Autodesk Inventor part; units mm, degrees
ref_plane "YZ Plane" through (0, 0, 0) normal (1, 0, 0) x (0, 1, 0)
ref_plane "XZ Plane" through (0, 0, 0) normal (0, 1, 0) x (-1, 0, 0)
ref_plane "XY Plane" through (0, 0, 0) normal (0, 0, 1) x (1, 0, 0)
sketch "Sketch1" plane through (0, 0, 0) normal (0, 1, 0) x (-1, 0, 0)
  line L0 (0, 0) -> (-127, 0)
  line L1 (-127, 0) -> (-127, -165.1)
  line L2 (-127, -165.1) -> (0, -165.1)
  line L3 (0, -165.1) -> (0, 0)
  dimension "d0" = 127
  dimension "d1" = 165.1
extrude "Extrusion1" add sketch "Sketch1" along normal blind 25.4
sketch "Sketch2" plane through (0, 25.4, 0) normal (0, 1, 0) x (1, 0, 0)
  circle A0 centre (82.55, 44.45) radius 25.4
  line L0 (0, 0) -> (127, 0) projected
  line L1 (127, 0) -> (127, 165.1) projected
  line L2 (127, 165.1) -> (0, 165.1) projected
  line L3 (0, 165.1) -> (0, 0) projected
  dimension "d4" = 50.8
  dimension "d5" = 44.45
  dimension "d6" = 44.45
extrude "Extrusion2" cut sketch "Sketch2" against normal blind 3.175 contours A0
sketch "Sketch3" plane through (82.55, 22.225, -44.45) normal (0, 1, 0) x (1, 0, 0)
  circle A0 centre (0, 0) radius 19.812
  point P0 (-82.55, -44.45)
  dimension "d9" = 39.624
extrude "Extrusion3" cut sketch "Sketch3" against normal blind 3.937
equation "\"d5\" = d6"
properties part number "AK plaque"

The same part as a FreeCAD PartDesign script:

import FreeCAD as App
import Part
import Sketcher

V = App.Vector
Q = App.Units.Quantity


def add_polygon(sketch, points):
    """Adds a closed chain of lines whose ends are joined by coincident constraints."""
    first, n = sketch.GeometryCount, len(points)
    for a, b in zip(points, points[1:] + points[:1]):
        sketch.addGeometry(Part.LineSegment(App.Vector(*a, 0), App.Vector(*b, 0)), False)
    for i in range(n):
        sketch.addConstraint(Sketcher.Constraint("Coincident", first + i, 2, first + (i + 1) % n, 1))

doc = App.newDocument("Part")
body = doc.addObject("PartDesign::Body", "Body")

sketch1 = body.newObject("Sketcher::SketchObject", "Sketch")
sketch1.AttachmentSupport = (doc.getObject("XZ_Plane"), [""])
sketch1.MapMode = "FlatFace"
add_polygon(sketch1, [(0, -165.1), (0, 0), (127, 0), (127, -165.1)])
sketch1.addConstraint([
    Sketcher.Constraint("Vertical", 0),
    Sketcher.Constraint("Horizontal", 1),
    Sketcher.Constraint("Vertical", 2),
    Sketcher.Constraint("Horizontal", 3),
    Sketcher.Constraint("Coincident", 0, 2, -1, 1),
    Sketcher.Constraint("DistanceX", 1, 1, 1, 2, Q("5 in")),
    Sketcher.Constraint("DistanceY", 0, 1, 0, 2, Q("6.5 in")),
])
pad1 = body.newObject("PartDesign::Pad", "Pad")
pad1.Profile = sketch1
pad1.Length = Q("1 in")
pad1.Reversed = True

sketch2 = body.newObject("Sketcher::SketchObject", "Sketch001")
sketch2.AttachmentSupport = (doc.getObject("XZ_Plane"), [""])
sketch2.MapMode = "FlatFace"
sketch2.AttachmentOffset = App.Placement(V(0, 0, -1 * 25.4), App.Rotation())
sketch2.addGeometry(Part.Circle(V(82.55, -44.45, 0), V(0, 0, 1), 25.4), False)
sketch2.addConstraint([
    Sketcher.Constraint("Diameter", 0, Q("2 in")),
    Sketcher.Constraint("DistanceY", 0, 3, -1, 1, Q("1.75 in")),
    Sketcher.Constraint("DistanceX", -1, 1, 0, 3, Q("3.25 in")),
])
pocket1 = body.newObject("PartDesign::Pocket", "Pocket")
pocket1.Profile = sketch2
pocket1.Length = Q("0.125 in")
pocket1.Reversed = True

sketch3 = body.newObject("Sketcher::SketchObject", "Sketch002")
sketch3.AttachmentSupport = (doc.getObject("XZ_Plane"), [""])
sketch3.MapMode = "FlatFace"
sketch3.AttachmentOffset = App.Placement(V(0, 0, -0.875 * 25.4), App.Rotation())
sketch3.addGeometry(Part.Circle(V(82.55, -44.45, 0), V(0, 0, 1), 19.812), False)
sketch3.addConstraint([
    Sketcher.Constraint("Diameter", 0, Q("1.56 in")),
    Sketcher.Constraint("DistanceX", -1, 1, 0, 3, Q("3.25 in")),
    Sketcher.Constraint("DistanceY", 0, 3, -1, 1, Q("1.75 in")),
])
pocket2 = body.newObject("PartDesign::Pocket", "Pocket001")
pocket2.Profile = sketch3
pocket2.Length = Q("0.155 in")
pocket2.Reversed = True

doc.recompute()
